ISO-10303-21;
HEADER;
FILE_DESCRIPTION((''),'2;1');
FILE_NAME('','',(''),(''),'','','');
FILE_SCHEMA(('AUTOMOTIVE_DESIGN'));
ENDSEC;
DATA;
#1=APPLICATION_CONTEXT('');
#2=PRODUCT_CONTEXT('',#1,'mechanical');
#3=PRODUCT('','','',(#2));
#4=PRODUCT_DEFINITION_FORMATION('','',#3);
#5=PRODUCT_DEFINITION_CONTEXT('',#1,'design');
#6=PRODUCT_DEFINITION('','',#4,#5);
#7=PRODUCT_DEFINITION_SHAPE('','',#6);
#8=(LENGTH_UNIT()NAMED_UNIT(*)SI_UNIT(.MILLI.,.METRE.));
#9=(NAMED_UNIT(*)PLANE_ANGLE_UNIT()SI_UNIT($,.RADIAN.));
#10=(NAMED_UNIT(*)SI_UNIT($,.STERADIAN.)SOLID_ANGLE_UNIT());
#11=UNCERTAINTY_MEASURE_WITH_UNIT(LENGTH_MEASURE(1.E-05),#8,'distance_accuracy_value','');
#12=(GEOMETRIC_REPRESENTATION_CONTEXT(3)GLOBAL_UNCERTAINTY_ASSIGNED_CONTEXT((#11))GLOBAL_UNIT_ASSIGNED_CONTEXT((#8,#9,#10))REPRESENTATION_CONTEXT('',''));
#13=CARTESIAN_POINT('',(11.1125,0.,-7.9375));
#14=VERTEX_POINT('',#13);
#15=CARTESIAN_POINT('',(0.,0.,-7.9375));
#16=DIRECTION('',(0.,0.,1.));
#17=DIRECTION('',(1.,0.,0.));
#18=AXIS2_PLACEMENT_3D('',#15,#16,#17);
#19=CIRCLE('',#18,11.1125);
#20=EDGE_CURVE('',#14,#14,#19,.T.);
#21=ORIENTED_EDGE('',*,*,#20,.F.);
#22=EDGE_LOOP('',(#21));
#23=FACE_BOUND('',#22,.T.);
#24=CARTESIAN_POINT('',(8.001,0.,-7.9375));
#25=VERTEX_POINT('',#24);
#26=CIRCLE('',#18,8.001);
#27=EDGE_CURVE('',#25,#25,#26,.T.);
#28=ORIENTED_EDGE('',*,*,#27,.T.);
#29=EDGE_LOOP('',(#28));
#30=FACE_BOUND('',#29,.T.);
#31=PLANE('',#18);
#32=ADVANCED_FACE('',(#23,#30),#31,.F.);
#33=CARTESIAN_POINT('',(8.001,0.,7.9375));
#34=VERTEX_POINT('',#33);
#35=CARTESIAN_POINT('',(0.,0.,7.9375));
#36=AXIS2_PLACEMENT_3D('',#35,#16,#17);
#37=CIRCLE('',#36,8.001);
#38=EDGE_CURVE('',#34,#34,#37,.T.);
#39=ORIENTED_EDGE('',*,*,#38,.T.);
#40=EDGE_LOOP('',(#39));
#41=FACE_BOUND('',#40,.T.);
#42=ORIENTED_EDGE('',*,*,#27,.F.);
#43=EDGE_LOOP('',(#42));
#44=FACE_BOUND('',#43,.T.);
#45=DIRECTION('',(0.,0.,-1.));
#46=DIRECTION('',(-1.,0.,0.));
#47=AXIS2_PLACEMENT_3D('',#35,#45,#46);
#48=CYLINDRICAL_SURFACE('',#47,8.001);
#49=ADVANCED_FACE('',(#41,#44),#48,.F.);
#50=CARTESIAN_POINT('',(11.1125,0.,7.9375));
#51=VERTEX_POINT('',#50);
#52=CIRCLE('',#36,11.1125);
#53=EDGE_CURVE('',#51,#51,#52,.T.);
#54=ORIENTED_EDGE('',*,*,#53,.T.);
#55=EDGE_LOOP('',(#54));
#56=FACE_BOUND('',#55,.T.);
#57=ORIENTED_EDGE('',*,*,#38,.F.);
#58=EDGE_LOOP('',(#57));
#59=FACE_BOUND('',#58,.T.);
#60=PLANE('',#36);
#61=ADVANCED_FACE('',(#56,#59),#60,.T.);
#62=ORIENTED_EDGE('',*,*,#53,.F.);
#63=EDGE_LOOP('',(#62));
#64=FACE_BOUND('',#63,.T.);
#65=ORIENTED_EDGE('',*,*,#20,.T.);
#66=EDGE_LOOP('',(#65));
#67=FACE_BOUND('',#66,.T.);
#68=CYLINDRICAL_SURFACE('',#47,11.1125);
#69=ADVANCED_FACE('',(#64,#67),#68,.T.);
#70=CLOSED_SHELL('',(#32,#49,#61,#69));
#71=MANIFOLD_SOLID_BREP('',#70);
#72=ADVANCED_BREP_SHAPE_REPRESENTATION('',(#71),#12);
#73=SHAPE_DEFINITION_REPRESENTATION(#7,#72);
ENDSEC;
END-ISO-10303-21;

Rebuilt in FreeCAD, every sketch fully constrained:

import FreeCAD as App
import Part
import Sketcher
from FreeCAD import Vector
Q = App.Units.Quantity

doc = App.newDocument("Part")
body = doc.addObject("PartDesign::Body", "Body")

# Sketch on XY plane
sketch1 = body.newObject("Sketcher::SketchObject", "Sketch")
sketch1.AttachmentSupport = (doc.getObject("XY_Plane"), [""])
sketch1.MapMode = "FlatFace"
sketch1.addGeometry([
    Part.Circle(Vector(0, 0, 0), Vector(0, 0, 1), 11),
    Part.Circle(Vector(0, 0, 0), Vector(0, 0, 1), 8),
], False)
sketch1.addConstraint([
    Sketcher.Constraint("Coincident", 0, 3, -1, 1),
    Sketcher.Constraint("Coincident", 1, 3, -1, 1),
    Sketcher.Constraint("Diameter", 1, Q("0.63 in")),
    Sketcher.Constraint("Diameter", 0, Q("0.875 in")),
])
pad1 = body.newObject("PartDesign::Pad", "Pad")
pad1.Profile = sketch1
pad1.Length = Q("0.625 in")
pad1.Midplane = True

doc.recompute()
